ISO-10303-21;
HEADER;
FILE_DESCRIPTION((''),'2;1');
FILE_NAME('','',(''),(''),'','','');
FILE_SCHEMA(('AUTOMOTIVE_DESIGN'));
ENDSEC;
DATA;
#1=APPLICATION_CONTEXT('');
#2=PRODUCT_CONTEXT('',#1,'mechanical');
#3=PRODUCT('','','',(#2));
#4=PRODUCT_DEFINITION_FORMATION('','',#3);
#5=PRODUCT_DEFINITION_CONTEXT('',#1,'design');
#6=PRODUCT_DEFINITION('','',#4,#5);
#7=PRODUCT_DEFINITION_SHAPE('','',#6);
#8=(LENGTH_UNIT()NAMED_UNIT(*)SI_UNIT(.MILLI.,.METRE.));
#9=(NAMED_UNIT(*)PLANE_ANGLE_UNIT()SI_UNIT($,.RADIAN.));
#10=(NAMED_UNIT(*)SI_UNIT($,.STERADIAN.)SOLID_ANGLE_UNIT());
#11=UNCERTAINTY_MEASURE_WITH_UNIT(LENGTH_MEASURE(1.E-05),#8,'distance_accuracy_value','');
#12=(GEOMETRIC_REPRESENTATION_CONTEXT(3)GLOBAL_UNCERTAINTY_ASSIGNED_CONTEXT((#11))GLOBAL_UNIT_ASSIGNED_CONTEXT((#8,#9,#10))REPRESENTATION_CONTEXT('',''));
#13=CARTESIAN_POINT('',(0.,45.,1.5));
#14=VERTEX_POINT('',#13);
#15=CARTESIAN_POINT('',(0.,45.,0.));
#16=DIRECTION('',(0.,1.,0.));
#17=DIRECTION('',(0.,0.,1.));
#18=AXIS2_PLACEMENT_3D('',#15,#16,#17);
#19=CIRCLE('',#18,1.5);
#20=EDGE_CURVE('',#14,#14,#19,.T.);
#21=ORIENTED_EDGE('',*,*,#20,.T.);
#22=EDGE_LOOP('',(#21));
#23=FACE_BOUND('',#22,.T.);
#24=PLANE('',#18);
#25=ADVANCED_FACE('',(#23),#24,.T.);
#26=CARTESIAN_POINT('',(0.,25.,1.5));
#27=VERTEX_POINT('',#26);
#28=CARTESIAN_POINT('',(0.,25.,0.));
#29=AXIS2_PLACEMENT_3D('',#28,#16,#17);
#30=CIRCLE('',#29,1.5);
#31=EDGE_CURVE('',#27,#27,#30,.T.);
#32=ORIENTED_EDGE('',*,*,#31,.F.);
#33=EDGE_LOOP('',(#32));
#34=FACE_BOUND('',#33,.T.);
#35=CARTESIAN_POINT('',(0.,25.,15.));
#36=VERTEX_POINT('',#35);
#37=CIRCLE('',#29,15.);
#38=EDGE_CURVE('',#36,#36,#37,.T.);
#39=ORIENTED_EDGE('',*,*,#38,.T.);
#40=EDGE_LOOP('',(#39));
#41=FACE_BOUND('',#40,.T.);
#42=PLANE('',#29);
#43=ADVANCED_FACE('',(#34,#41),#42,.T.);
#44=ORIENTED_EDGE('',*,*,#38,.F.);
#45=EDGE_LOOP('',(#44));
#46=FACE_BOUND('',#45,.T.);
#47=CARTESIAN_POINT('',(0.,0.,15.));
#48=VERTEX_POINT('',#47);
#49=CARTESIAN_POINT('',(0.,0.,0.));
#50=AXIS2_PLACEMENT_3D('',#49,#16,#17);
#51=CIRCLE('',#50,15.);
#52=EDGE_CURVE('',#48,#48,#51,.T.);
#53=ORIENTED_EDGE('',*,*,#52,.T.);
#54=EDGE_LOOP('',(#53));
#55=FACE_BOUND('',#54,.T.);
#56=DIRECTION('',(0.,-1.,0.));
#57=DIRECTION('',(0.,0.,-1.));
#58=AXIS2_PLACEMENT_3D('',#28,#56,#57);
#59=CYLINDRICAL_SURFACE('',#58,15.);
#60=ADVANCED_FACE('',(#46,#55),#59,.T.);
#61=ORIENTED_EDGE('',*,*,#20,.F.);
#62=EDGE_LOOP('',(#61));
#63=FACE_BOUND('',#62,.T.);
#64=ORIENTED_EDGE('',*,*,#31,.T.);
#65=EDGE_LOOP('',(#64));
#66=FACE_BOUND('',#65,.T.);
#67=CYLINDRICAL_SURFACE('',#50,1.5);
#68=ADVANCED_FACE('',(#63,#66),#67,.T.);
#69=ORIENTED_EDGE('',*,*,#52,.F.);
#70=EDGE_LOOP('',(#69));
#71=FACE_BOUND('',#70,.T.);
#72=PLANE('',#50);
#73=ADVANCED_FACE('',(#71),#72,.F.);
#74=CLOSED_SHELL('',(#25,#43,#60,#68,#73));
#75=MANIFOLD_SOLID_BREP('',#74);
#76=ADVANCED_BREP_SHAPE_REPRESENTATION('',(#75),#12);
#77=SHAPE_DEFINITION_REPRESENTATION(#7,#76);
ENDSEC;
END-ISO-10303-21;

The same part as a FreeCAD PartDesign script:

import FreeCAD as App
import Part
import Sketcher
from FreeCAD import Vector

doc = App.newDocument("Part")
params = doc.addObject("Spreadsheet::Sheet", "Params")
for row, (alias, value) in enumerate([
    ("sketch1_diameter", "30 mm"),
    ("sketch1_diameter2", "3 mm"),
    ("pad1_length", "25 mm"),
    ("sketch2_diameter", "3 mm"),
    ("pad2_length", "20 mm"),
    ("pad2_length2", "25 mm"),
], start=1):
    params.set(f"A{row}", alias)
    params.set(f"B{row}", "=" + value)
    params.setAlias(f"B{row}", alias)

body = doc.addObject("PartDesign::Body", "Body")

# Sketch on XZ plane
sketch1 = doc.addObject("Sketcher::SketchObject", "Sketch")
body.addObject(sketch1)
sketch1.AttachmentSupport = (doc.XZ_Plane, [""])
sketch1.MapMode = "FlatFace"
sketch1.addGeometry(Part.Circle(Vector(0, 0, 0), Vector(0, 0, 1), 15), False)
sketch1.addGeometry(Part.Circle(Vector(0, 0, 0), Vector(0, 0, 1), 1.5), False)
sketch1.addConstraint(Sketcher.Constraint("Coincident", 0, 3, -1, 1))
sketch1.addConstraint(Sketcher.Constraint("Coincident", 1, 3, -1, 1))
sketch1.addConstraint(Sketcher.Constraint("Diameter", 0, 30.0))
sketch1.addConstraint(Sketcher.Constraint("Diameter", 1, 3.0))
sketch1.setExpression("Constraints[2]", "Params.sketch1_diameter")
sketch1.setExpression("Constraints[3]", "Params.sketch1_diameter2")
pad1 = doc.addObject("PartDesign::Pad", "Pad")
body.addObject(pad1)
pad1.Profile = sketch1
pad1.setExpression("Length", "Params.pad1_length")
pad1.Reversed = True

# Sketch on XZ plane
sketch2 = doc.addObject("Sketcher::SketchObject", "Sketch001")
body.addObject(sketch2)
sketch2.AttachmentSupport = (doc.XZ_Plane, [""])
sketch2.MapMode = "FlatFace"
sketch2.AttachmentOffset = App.Placement(Vector(0, 0, -25), App.Rotation())
sketch2.addGeometry(Part.Circle(Vector(0, 0, 0), Vector(0, 0, 1), 1.5), False)
sketch2.addConstraint(Sketcher.Constraint("Coincident", 0, 3, -1, 1))
sketch2.addConstraint(Sketcher.Constraint("Diameter", 0, 3.0))
sketch2.setExpression("Constraints[1]", "Params.sketch2_diameter")
pad2 = doc.addObject("PartDesign::Pad", "Pad001")
body.addObject(pad2)
pad2.Profile = sketch2
pad2.Type = "TwoLengths"
pad2.setExpression("Length", "Params.pad2_length")
pad2.setExpression("Length2", "Params.pad2_length2")
pad2.Reversed = True

doc.recompute()
